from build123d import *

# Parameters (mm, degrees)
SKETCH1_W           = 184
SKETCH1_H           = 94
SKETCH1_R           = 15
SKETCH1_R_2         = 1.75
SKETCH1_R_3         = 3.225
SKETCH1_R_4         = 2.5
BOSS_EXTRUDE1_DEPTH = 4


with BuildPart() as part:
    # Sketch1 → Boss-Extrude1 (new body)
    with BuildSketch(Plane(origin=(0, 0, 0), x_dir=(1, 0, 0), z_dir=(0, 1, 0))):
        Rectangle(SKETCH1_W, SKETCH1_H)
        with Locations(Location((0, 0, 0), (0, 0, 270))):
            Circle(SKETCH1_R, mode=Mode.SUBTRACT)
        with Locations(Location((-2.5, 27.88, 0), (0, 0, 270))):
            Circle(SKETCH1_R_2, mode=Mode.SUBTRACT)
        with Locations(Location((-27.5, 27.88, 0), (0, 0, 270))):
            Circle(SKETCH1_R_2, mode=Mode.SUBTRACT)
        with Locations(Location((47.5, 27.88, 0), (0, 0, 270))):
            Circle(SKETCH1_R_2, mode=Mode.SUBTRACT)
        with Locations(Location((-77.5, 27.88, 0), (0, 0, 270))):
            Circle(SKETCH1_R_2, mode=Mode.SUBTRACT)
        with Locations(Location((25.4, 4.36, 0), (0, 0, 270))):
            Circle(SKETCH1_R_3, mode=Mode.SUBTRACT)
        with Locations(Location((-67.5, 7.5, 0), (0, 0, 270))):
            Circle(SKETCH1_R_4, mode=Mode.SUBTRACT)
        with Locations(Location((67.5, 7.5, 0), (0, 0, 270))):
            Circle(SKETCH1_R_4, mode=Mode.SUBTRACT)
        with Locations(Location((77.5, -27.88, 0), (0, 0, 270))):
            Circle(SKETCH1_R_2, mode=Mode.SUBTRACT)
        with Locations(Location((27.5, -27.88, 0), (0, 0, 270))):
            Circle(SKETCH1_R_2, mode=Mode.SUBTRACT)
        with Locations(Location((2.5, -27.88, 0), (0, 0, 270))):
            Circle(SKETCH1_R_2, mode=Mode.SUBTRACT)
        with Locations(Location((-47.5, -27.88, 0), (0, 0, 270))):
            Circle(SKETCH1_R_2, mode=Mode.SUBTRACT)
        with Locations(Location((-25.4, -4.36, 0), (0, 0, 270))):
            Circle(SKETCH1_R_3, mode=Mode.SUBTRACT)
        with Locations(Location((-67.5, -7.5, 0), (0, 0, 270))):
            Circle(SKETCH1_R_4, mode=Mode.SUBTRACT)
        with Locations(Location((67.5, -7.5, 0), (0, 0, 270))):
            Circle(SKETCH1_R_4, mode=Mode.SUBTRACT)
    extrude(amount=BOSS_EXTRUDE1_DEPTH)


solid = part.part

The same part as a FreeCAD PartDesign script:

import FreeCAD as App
import Part
import Sketcher

V = App.Vector

doc = App.newDocument("Part")
body = doc.addObject("PartDesign::Body", "Body")

# Sketch on XZ plane
sketch1 = doc.addObject("Sketcher::SketchObject", "Sketch")
body.addObject(sketch1)
sketch1.AttachmentSupport = (doc.XZ_Plane, [""])
sketch1.MapMode = "FlatFace"
sketch1.addGeometry(Part.LineSegment(V(-92, -47, 0), V(-92, 47, 0)), False)
sketch1.addGeometry(Part.LineSegment(V(-92, 47, 0), V(92, 47, 0)), False)
sketch1.addGeometry(Part.LineSegment(V(92, 47, 0), V(92, -47, 0)), False)
sketch1.addGeometry(Part.LineSegment(V(92, -47, 0), V(-92, -47, 0)), False)
sketch1.addGeometry(Part.Circle(V(-47.5, 27.88, 0), V(0, 0, 1), 1.75), False)
sketch1.addGeometry(Part.Circle(V(-67.5, 7.5, 0), V(0, 0, 1), 2.5), False)
sketch1.addGeometry(Part.Circle(V(-25.4, 4.36, 0), V(0, 0, 1), 3.225), False)
sketch1.addGeometry(Part.Circle(V(2.5, 27.88, 0), V(0, 0, 1), 1.75), False)
sketch1.addGeometry(Part.Circle(V(27.5, 27.88, 0), V(0, 0, 1), 1.75), False)
sketch1.addGeometry(Part.Circle(V(77.5, 27.88, 0), V(0, 0, 1), 1.75), False)
sketch1.addGeometry(Part.Circle(V(0, 0, 0), V(0, 0, 1), 15), False)
sketch1.addGeometry(Part.Circle(V(67.5, 7.5, 0), V(0, 0, 1), 2.5), False)
sketch1.addGeometry(Part.Circle(V(-67.5, -7.5, 0), V(0, 0, 1), 2.5), False)
sketch1.addGeometry(Part.Circle(V(-77.5, -27.88, 0), V(0, 0, 1), 1.75), False)
sketch1.addGeometry(Part.Circle(V(-27.5, -27.88, 0), V(0, 0, 1), 1.75), False)
sketch1.addGeometry(Part.Circle(V(-2.5, -27.88, 0), V(0, 0, 1), 1.75), False)
sketch1.addGeometry(Part.Circle(V(25.4, -4.36, 0), V(0, 0, 1), 3.225), False)
sketch1.addGeometry(Part.Circle(V(67.5, -7.5, 0), V(0, 0, 1), 2.5), False)
sketch1.addGeometry(Part.Circle(V(47.5, -27.88, 0), V(0, 0, 1), 1.75), False)
sketch1.addConstraint(Sketcher.Constraint("Coincident", 0, 2, 1, 1))
sketch1.addConstraint(Sketcher.Constraint("Coincident", 1, 2, 2, 1))
sketch1.addConstraint(Sketcher.Constraint("Coincident", 2, 2, 3, 1))
sketch1.addConstraint(Sketcher.Constraint("Coincident", 3, 2, 0, 1))
sketch1.addConstraint(Sketcher.Constraint("Vertical", 0))
sketch1.addConstraint(Sketcher.Constraint("Horizontal", 1))
sketch1.addConstraint(Sketcher.Constraint("Vertical", 2))
sketch1.addConstraint(Sketcher.Constraint("Horizontal", 3))
sketch1.addConstraint(Sketcher.Constraint("Coincident", 10, 3, -1, 1))
sketch1.addConstraint(Sketcher.Constraint("Equal", 4, 7))
sketch1.addConstraint(Sketcher.Constraint("Equal", 7, 8))
sketch1.addConstraint(Sketcher.Constraint("Equal", 8, 9))
sketch1.addConstraint(Sketcher.Constraint("Equal", 5, 11))
sketch1.addConstraint(Sketcher.Constraint("Equal", 11, 12))
sketch1.addConstraint(Sketcher.Constraint("Equal", 9, 13))
sketch1.addConstraint(Sketcher.Constraint("Equal", 13, 14))
sketch1.addConstraint(Sketcher.Constraint("Equal", 14, 15))
sketch1.addConstraint(Sketcher.Constraint("Equal", 6, 16))
sketch1.addConstraint(Sketcher.Constraint("Equal", 12, 17))
sketch1.addConstraint(Sketcher.Constraint("Equal", 15, 18))
sketch1.addConstraint(Sketcher.Constraint("Symmetric", 11, 3, 12, 3, -1, 1))
sketch1.addConstraint(Sketcher.Constraint("Symmetric", 9, 3, 13, 3, -1, 1))
sketch1.addConstraint(Sketcher.Constraint("Symmetric", 8, 3, 14, 3, -1, 1))
sketch1.addConstraint(Sketcher.Constraint("Symmetric", 7, 3, 15, 3, -1, 1))
sketch1.addConstraint(Sketcher.Constraint("Symmetric", 6, 3, 16, 3, -1, 1))
sketch1.addConstraint(Sketcher.Constraint("Symmetric", 5, 3, 17, 3, -1, 1))
sketch1.addConstraint(Sketcher.Constraint("Symmetric", 4, 3, 18, 3, -1, 1))
sketch1.addConstraint(Sketcher.Constraint("Symmetric", 0, 2, 2, 2, -1, 1))
sketch1.addConstraint(Sketcher.Constraint("Symmetric", 5, 3, 11, 3, -2))
sketch1.addConstraint(Sketcher.Constraint("Horizontal", 4, 3, 7, 3))
sketch1.addConstraint(Sketcher.Constraint("Horizontal", 7, 3, 8, 3))
sketch1.addConstraint(Sketcher.Constraint("Horizontal", 8, 3, 9, 3))
sketch1.addConstraint(Sketcher.Constraint("Diameter", 5, 5.0))
sketch1.addConstraint(Sketcher.Constraint("Diameter", 10, 30.0))
sketch1.addConstraint(Sketcher.Constraint("Diameter", 4, 3.5))
sketch1.addConstraint(Sketcher.Constraint("Diameter", 6, 6.45))
sketch1.addConstraint(Sketcher.Constraint("DistanceX", 1, 1, 1, 2, 184.0))
sketch1.addConstraint(Sketcher.Constraint("DistanceY", 0, 1, 0, 2, 94.0))
sketch1.addConstraint(Sketcher.Constraint("DistanceX", 5, 3, 4, 3, 20.0))
sketch1.addConstraint(Sketcher.Constraint("DistanceX", 4, 3, 7, 3, 50.0))
sketch1.addConstraint(Sketcher.Constraint("DistanceX", 7, 3, 8, 3, 25.0))
sketch1.addConstraint(Sketcher.Constraint("DistanceX", 8, 3, 9, 3, 50.0))
sketch1.addConstraint(Sketcher.Constraint("DistanceX", 11, 3, 9, 3, 10.0))
sketch1.addConstraint(Sketcher.Constraint("DistanceY", 12, 3, 5, 3, 15.0))
sketch1.addConstraint(Sketcher.Constraint("DistanceX", 6, 3, -1, 1, 25.4))
sketch1.addConstraint(Sketcher.Constraint("DistanceY", -1, 1, 4, 3, 27.88))
sketch1.addConstraint(Sketcher.Constraint("DistanceY", -1, 1, 6, 3, 4.36))
pad1 = doc.addObject("PartDesign::Pad", "Pad")
body.addObject(pad1)
pad1.Profile = sketch1
pad1.Length = 4
pad1.Reversed = True

doc.recompute()
